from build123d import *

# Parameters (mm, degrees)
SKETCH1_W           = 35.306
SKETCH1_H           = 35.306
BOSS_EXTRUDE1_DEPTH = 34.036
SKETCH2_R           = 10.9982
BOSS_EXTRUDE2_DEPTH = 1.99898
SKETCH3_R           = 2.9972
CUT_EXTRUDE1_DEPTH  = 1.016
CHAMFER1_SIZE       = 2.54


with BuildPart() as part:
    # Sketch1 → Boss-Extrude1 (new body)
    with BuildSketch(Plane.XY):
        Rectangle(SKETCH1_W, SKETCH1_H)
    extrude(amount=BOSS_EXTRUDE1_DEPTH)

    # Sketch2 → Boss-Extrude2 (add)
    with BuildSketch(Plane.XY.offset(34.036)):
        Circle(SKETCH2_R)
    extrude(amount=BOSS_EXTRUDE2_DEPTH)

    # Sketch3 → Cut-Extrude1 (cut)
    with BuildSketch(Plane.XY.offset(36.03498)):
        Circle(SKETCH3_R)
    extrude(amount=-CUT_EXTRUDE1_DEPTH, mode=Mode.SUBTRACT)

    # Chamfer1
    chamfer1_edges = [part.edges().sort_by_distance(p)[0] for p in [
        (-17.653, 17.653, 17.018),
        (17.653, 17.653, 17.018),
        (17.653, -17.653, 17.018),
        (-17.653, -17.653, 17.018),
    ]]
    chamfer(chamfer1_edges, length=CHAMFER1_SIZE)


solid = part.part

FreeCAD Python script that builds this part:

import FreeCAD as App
import Part
import Sketcher
Q = App.Units.Quantity


def edges_at(feature, points):
    """Names of the edges that pass closest to the given points."""
    edges = feature.Shape.Edges
    near = lambda p: min(range(len(edges)), key=lambda i: edges[i].distToShape(Part.Vertex(*p))[0])
    return sorted({f"Edge{near(p) + 1}" for p in points})

doc = App.newDocument("Part")
params = doc.addObject("Spreadsheet::Sheet", "Params")
for row, (alias, value) in enumerate([
    ("sketch1_width", "1.39 in"),
    ("pad1_length", "1.34 in"),
    ("sketch2_diameter", "0.866 in"),
    ("pad2_length", "0.0787 in"),
    ("sketch3_diameter", "0.236 in"),
    ("pocket1_length", "0.04 in"),
    ("chamfer_size", "0.1 in"),
], start=1):
    params.set(f"A{row}", alias)
    params.set(f"B{row}", "=" + value)
    params.setAlias(f"B{row}", alias)

body = doc.addObject("PartDesign::Body", "Body")

sketch1 = body.newObject("Sketcher::SketchObject", "Sketch")
sketch1.AttachmentSupport = (doc.getObject("XY_Plane"), [""])
sketch1.MapMode = "FlatFace"
sketch1.addGeometry([
    Part.LineSegment(App.Vector(-18, 18, 0), App.Vector(-18, -18, 0)),
    Part.LineSegment(App.Vector(-18, -18, 0), App.Vector(18, -18, 0)),
    Part.LineSegment(App.Vector(18, -18, 0), App.Vector(18, 18, 0)),
    Part.LineSegment(App.Vector(18, 18, 0), App.Vector(-18, 18, 0)),
], False)
sketch1.addConstraint([
    Sketcher.Constraint("Coincident", 0, 2, 1, 1),
    Sketcher.Constraint("Coincident", 1, 2, 2, 1),
    Sketcher.Constraint("Coincident", 2, 2, 3, 1),
    Sketcher.Constraint("Coincident", 3, 2, 0, 1),
    Sketcher.Constraint("Vertical", 0),
    Sketcher.Constraint("Horizontal", 1),
    Sketcher.Constraint("Vertical", 2),
    Sketcher.Constraint("Horizontal", 3),
    Sketcher.Constraint("Symmetric", 0, 2, 2, 2, -1, 1),
    Sketcher.Constraint("Equal", 3, 0),
    Sketcher.Constraint("DistanceX", 1, 1, 1, 2, Q("1.39 in")),
])
sketch1.setExpression("Constraints[10]", "Params.sketch1_width")
pad1 = body.newObject("PartDesign::Pad", "Pad")
pad1.Profile = sketch1
pad1.setExpression("Length", "Params.pad1_length")

sketch2 = body.newObject("Sketcher::SketchObject", "Sketch001")
sketch2.AttachmentSupport = (doc.getObject("XY_Plane"), [""])
sketch2.MapMode = "FlatFace"
sketch2.AttachmentOffset = App.Placement(App.Vector(0, 0, 1.34 * 25.4), App.Rotation())
sketch2.addGeometry(Part.Circle(App.Vector(0, 0, 0), App.Vector(0, 0, 1), 11), False)
sketch2.addConstraint([
    Sketcher.Constraint("Coincident", 0, 3, -1, 1),
    Sketcher.Constraint("Diameter", 0, Q("0.866 in")),
])
sketch2.setExpression("Constraints[1]", "Params.sketch2_diameter")
pad2 = body.newObject("PartDesign::Pad", "Pad001")
pad2.Profile = sketch2
pad2.setExpression("Length", "Params.pad2_length")

sketch3 = body.newObject("Sketcher::SketchObject", "Sketch002")
sketch3.AttachmentSupport = (doc.getObject("XY_Plane"), [""])
sketch3.MapMode = "FlatFace"
sketch3.AttachmentOffset = App.Placement(App.Vector(0, 0, 1.4187 * 25.4), App.Rotation())
sketch3.addGeometry(Part.Circle(App.Vector(0, 0, 0), App.Vector(0, 0, 1), 3), False)
sketch3.addConstraint([
    Sketcher.Constraint("Coincident", 0, 3, -1, 1),
    Sketcher.Constraint("Diameter", 0, Q("0.236 in")),
])
sketch3.setExpression("Constraints[1]", "Params.sketch3_diameter")
pocket1 = body.newObject("PartDesign::Pocket", "Pocket")
pocket1.Profile = sketch3
pocket1.setExpression("Length", "Params.pocket1_length")
doc.recompute()

chamfer = body.newObject("PartDesign::Chamfer", "Chamfer")
chamfer.Base = (pocket1, edges_at(pocket1, [
    (-17.653, 17.653, 17.018),
    (17.653, 17.653, 17.018),
    (17.653, -17.653, 17.018),
    (-17.653, -17.653, 17.018),
]))
chamfer.setExpression("Size", "Params.chamfer_size")

doc.recompute()
